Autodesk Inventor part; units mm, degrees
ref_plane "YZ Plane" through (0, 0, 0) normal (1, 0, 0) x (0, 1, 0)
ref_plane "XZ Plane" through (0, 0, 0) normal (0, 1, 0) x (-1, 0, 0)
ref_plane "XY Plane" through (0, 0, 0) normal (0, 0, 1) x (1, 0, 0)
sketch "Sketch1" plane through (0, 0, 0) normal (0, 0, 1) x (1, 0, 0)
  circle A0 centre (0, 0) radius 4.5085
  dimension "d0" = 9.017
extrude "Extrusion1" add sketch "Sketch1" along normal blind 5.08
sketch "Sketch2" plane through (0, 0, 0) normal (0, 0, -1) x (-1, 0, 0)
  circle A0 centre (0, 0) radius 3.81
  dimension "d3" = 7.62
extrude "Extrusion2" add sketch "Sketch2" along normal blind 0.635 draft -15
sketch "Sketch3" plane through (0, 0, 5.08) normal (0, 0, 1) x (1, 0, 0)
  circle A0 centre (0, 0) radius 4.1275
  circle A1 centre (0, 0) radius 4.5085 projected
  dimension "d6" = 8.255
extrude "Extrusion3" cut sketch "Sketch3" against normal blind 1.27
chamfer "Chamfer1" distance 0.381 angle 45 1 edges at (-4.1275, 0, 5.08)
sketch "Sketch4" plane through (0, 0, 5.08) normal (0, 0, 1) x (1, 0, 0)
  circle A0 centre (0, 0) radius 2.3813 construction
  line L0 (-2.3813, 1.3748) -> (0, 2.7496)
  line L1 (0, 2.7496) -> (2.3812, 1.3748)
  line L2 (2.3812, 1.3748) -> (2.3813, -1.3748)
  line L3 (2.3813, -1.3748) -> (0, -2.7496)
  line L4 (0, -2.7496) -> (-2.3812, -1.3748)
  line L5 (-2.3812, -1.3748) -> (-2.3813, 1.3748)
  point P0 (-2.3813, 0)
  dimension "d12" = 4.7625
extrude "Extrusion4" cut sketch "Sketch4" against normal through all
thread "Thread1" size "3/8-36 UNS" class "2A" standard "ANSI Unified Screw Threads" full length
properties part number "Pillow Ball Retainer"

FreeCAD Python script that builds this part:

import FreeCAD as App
import Part
import Sketcher
Q = App.Units.Quantity


def edges_at(feature, points):
    """Names of the edges that pass closest to the given points."""
    edges = feature.Shape.Edges
    near = lambda p: min(range(len(edges)), key=lambda i: edges[i].distToShape(Part.Vertex(*p))[0])
    return sorted({f"Edge{near(p) + 1}" for p in points})


def add_polygon(sketch, points):
    """Adds a closed chain of lines whose ends are joined by coincident constraints."""
    first, n = sketch.GeometryCount, len(points)
    for a, b in zip(points, points[1:] + points[:1]):
        sketch.addGeometry(Part.LineSegment(App.Vector(*a, 0), App.Vector(*b, 0)), False)
    for i in range(n):
        sketch.addConstraint(Sketcher.Constraint("Coincident", first + i, 2, first + (i + 1) % n, 1))

doc = App.newDocument("Part")
body = doc.addObject("PartDesign::Body", "Body")

# Sketch on XY plane
sketch1 = doc.addObject("Sketcher::SketchObject", "Sketch")
body.addObject(sketch1)
sketch1.AttachmentSupport = (doc.XY_Plane, [""])
sketch1.MapMode = "FlatFace"
sketch1.addGeometry(Part.Circle(App.Vector(0, 0, 0), App.Vector(0, 0, 1), 4.5085), False)
sketch1.addConstraint([
    Sketcher.Constraint("Coincident", 0, 3, -1, 1),
    Sketcher.Constraint("Diameter", 0, Q("0.355 in")),
])
pad1 = doc.addObject("PartDesign::Pad", "Pad")
body.addObject(pad1)
pad1.Profile = sketch1
pad1.Length = Q("0.2 in")

# Sketch on XY plane
sketch2 = doc.addObject("Sketcher::SketchObject", "Sketch001")
body.addObject(sketch2)
sketch2.AttachmentSupport = (doc.XY_Plane, [""])
sketch2.MapMode = "FlatFace"
sketch2.addGeometry(Part.Circle(App.Vector(0, 0, 0), App.Vector(0, 0, 1), 3.81), False)
sketch2.addConstraint([
    Sketcher.Constraint("Coincident", 0, 3, -1, 1),
    Sketcher.Constraint("Diameter", 0, Q("0.3 in")),
])
pad2 = doc.addObject("PartDesign::Pad", "Pad001")
body.addObject(pad2)
pad2.Profile = sketch2
pad2.Length = Q("0.025 in")
pad2.Reversed = True
pad2.TaperAngle = -15

# Sketch on XY plane
sketch3 = doc.addObject("Sketcher::SketchObject", "Sketch002")
body.addObject(sketch3)
sketch3.AttachmentSupport = (doc.XY_Plane, [""])
sketch3.MapMode = "FlatFace"
sketch3.AttachmentOffset = App.Placement(App.Vector(0, 0, 0.2 * 25.4), App.Rotation())
sketch3.addGeometry([
    Part.Circle(App.Vector(0, 0, 0), App.Vector(0, 0, 1), 4.5085),
    Part.Circle(App.Vector(0, 0, 0), App.Vector(0, 0, 1), 4.1275),
], False)
sketch3.addConstraint([
    Sketcher.Constraint("Coincident", 0, 3, -1, 1),
    Sketcher.Constraint("Coincident", 1, 3, -1, 1),
    Sketcher.Constraint("Diameter", 1, Q("0.325 in")),
    Sketcher.Constraint("Diameter", 0, Q("0.355 in")),
])
pocket1 = doc.addObject("PartDesign::Pocket", "Pocket")
body.addObject(pocket1)
pocket1.Profile = sketch3
pocket1.Length = Q("0.05 in")
doc.recompute()

chamfer = doc.addObject("PartDesign::Chamfer", "Chamfer")
body.addObject(chamfer)
chamfer.Base = (pocket1, edges_at(pocket1, [(-4.128, 0, 5.08)]))
chamfer.Size = Q("0.015 in")

# Sketch on XY plane
sketch4 = doc.addObject("Sketcher::SketchObject", "Sketch003")
body.addObject(sketch4)
sketch4.AttachmentSupport = (doc.XY_Plane, [""])
sketch4.MapMode = "FlatFace"
sketch4.AttachmentOffset = App.Placement(App.Vector(0, 0, 0.2 * 25.4), App.Rotation())
add_polygon(sketch4, [(0, 2.7496), (-2.3813, 1.3748), (-2.3812, -1.3748), (0, -2.7496), (2.3813, -1.3748), (2.3812, 1.3748)])  # lines 0-5
sketch4.addConstraint([
    Sketcher.Constraint("Vertical", 1),
    Sketcher.Constraint("Vertical", 4),
    Sketcher.Constraint("Symmetric", 0, 2, 3, 2, -1, 1),
    Sketcher.Constraint("Symmetric", 2, 2, 5, 2, -1, 1),
    Sketcher.Constraint("PointOnObject", 2, 2, -2),
    Sketcher.Constraint("Parallel", 2, 5),
    Sketcher.Constraint("Horizontal", 1, 2, 3, 2),
    Sketcher.Constraint("Angle", 0, Q("-150.0008 deg")),
    Sketcher.Constraint("DistanceX", 1, 2, 3, 2, Q("0.1875 in")),
    Sketcher.Constraint("DistanceY", 1, 2, 1, 1, 2.7496),
])
pocket2 = doc.addObject("PartDesign::Pocket", "Pocket001")
body.addObject(pocket2)
pocket2.Profile = sketch4
pocket2.Type = "ThroughAll"

doc.recompute()
